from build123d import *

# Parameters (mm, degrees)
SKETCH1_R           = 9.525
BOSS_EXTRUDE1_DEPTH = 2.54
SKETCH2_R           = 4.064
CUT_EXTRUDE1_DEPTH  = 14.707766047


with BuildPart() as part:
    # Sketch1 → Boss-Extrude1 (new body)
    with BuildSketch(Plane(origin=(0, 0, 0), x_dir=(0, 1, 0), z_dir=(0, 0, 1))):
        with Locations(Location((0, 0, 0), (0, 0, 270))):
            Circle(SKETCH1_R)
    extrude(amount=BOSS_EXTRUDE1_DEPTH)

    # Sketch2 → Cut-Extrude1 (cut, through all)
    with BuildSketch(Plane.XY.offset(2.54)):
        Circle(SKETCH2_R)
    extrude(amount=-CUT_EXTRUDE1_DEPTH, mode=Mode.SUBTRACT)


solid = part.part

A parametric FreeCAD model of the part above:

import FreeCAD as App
import Part
import Sketcher
Q = App.Units.Quantity

doc = App.newDocument("Part")
body = doc.addObject("PartDesign::Body", "Body")

# Sketch on XY plane
sketch1 = body.newObject("Sketcher::SketchObject", "Sketch")
sketch1.AttachmentSupport = (doc.getObject("XY_Plane"), [""])
sketch1.MapMode = "FlatFace"
sketch1.addGeometry(Part.Circle(App.Vector(0, 0, 0), App.Vector(0, 0, 1), 9.525), False)
sketch1.addConstraint(Sketcher.Constraint("Coincident", 0, 3, -1, 1))
sketch1.addConstraint(Sketcher.Constraint("Diameter", 0, Q("0.75 in")))
pad1 = body.newObject("PartDesign::Pad", "Pad")
pad1.Profile = sketch1
pad1.Length = Q("0.1 in")

# Sketch on XY plane
sketch2 = body.newObject("Sketcher::SketchObject", "Sketch001")
sketch2.AttachmentSupport = (doc.getObject("XY_Plane"), [""])
sketch2.MapMode = "FlatFace"
sketch2.AttachmentOffset = App.Placement(App.Vector(0, 0, 0.1 * 25.4), App.Rotation())
sketch2.addGeometry(Part.Circle(App.Vector(0, 0, 0), App.Vector(0, 0, 1), 4.064), False)
sketch2.addConstraint(Sketcher.Constraint("Coincident", 0, 3, -1, 1))
sketch2.addConstraint(Sketcher.Constraint("Diameter", 0, Q("0.32 in")))
pocket1 = body.newObject("PartDesign::Pocket", "Pocket")
pocket1.Profile = sketch2
pocket1.Type = "ThroughAll"

doc.recompute()
